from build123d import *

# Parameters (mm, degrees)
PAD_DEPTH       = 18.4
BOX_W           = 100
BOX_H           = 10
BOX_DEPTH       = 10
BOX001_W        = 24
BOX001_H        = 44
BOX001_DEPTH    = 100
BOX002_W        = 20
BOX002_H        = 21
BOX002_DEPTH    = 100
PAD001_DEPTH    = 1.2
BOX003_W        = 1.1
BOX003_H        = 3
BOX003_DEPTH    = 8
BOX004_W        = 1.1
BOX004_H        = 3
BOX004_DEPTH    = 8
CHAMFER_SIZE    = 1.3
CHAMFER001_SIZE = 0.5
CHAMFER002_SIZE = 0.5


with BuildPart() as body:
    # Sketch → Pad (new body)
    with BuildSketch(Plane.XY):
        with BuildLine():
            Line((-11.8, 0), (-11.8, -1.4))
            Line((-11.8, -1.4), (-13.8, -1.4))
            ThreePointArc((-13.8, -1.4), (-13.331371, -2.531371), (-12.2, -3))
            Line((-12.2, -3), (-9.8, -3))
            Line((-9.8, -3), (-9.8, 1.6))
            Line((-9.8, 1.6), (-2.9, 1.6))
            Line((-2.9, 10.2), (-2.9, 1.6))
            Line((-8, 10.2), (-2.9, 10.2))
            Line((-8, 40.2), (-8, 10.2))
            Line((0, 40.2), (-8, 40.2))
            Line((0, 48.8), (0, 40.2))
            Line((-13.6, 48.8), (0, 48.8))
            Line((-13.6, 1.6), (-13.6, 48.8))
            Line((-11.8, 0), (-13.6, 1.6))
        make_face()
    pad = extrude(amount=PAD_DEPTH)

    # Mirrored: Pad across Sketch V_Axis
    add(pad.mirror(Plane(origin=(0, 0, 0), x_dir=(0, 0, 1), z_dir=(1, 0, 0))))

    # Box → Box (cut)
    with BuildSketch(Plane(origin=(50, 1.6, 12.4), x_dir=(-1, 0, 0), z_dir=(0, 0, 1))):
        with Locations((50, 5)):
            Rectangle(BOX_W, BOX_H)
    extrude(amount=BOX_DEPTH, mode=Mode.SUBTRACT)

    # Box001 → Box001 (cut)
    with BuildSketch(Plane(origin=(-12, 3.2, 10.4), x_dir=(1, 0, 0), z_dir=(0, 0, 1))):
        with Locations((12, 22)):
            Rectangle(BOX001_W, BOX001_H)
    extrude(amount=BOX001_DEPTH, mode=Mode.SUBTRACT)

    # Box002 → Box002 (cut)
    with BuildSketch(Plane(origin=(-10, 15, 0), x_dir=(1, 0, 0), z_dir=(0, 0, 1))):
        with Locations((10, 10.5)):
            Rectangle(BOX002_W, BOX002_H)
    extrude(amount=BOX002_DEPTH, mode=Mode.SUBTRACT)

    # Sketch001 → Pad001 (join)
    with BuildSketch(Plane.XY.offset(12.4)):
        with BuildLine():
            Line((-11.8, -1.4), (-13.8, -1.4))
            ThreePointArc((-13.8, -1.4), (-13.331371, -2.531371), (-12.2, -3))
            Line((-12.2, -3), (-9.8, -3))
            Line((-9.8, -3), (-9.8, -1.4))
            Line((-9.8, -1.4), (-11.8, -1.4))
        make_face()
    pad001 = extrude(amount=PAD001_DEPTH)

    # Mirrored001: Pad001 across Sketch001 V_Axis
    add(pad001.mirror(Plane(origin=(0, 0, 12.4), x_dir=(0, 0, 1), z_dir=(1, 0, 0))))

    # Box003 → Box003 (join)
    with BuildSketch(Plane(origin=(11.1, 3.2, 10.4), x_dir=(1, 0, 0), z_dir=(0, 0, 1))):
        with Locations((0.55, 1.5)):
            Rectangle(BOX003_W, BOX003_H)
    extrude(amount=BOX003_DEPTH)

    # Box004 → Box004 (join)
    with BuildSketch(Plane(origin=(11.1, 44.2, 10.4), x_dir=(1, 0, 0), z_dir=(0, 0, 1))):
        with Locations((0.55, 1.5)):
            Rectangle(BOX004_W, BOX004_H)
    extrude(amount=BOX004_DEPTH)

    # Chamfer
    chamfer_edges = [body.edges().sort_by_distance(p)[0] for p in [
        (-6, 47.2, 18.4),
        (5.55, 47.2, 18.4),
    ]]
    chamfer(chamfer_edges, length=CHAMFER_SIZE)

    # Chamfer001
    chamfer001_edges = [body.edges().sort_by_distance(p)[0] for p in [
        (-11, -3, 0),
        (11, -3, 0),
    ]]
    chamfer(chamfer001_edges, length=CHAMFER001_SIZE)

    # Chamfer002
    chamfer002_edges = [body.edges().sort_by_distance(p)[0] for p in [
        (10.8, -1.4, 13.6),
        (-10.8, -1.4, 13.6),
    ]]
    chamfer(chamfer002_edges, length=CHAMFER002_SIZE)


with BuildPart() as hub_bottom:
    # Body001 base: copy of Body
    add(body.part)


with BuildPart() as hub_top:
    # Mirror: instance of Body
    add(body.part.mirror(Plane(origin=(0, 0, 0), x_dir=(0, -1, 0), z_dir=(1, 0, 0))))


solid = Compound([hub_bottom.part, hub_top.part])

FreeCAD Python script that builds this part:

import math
import FreeCAD as App
import Part
import Sketcher
from FreeCAD import Vector
Q = App.Units.Quantity


def edges_at(feature, points):
    """Names of the edges that pass closest to the given points."""
    edges = feature.Shape.Edges
    near = lambda p: min(range(len(edges)), key=lambda i: edges[i].distToShape(Part.Vertex(*p))[0])
    return sorted({f"Edge{near(p) + 1}" for p in points})

doc = App.newDocument("Part")
body = doc.addObject("PartDesign::Body", "Body")

sketch1 = body.newObject("Sketcher::SketchObject", "Sketch")
sketch1.AttachmentSupport = (doc.getObject("XY_Plane"), [""])
sketch1.MapMode = "FlatFace"
sketch1.addGeometry([
    Part.LineSegment(Vector(-11.8, 0, 0), Vector(-11.8, -1.4, 0)),
    Part.LineSegment(Vector(-11.8, -1.4, 0), Vector(-13.8, -1.4, 0)),
    Part.ArcOfCircle(Part.Circle(Vector(-12.200001, -1.400001, 0), Vector(0, 0, 1), 1.599999), math.radians(179.999982), math.radians(270.000018)),
    Part.LineSegment(Vector(-12.2, -3, 0), Vector(-9.8, -3, 0)),
    Part.LineSegment(Vector(-9.8, -3, 0), Vector(-9.8, 1.6, 0)),
    Part.LineSegment(Vector(-9.8, 1.6, 0), Vector(-2.9, 1.6, 0)),
    Part.LineSegment(Vector(-2.9, 1.6, 0), Vector(-2.9, 10.2, 0)),
    Part.LineSegment(Vector(-2.9, 10.2, 0), Vector(-8, 10.2, 0)),
    Part.LineSegment(Vector(-8, 10.2, 0), Vector(-8, 40.2, 0)),
    Part.LineSegment(Vector(-8, 40.2, 0), Vector(0, 40.2, 0)),
    Part.LineSegment(Vector(0, 40.2, 0), Vector(0, 48.8, 0)),
    Part.LineSegment(Vector(0, 48.8, 0), Vector(-13.6, 48.8, 0)),
    Part.LineSegment(Vector(-13.6, 48.8, 0), Vector(-13.6, 1.6, 0)),
    Part.LineSegment(Vector(-13.6, 1.6, 0), Vector(-11.8, 0, 0)),
], False)
sketch1.addConstraint([
    Sketcher.Constraint("Coincident", 0, 2, 1, 1),
    Sketcher.Constraint("Coincident", 1, 2, 2, 1),
    Sketcher.Constraint("Tangent", 2, 2, 3, 1),
    Sketcher.Constraint("Coincident", 3, 2, 4, 1),
    Sketcher.Constraint("Coincident", 4, 2, 5, 1),
    Sketcher.Constraint("Coincident", 5, 2, 6, 1),
    Sketcher.Constraint("Coincident", 6, 2, 7, 1),
    Sketcher.Constraint("Coincident", 7, 2, 8, 1),
    Sketcher.Constraint("Coincident", 8, 2, 9, 1),
    Sketcher.Constraint("Coincident", 9, 2, 10, 1),
    Sketcher.Constraint("Coincident", 10, 2, 11, 1),
    Sketcher.Constraint("Coincident", 11, 2, 12, 1),
    Sketcher.Constraint("Coincident", 12, 2, 13, 1),
    Sketcher.Constraint("Coincident", 13, 2, 0, 1),
    Sketcher.Constraint("Vertical", 0),
    Sketcher.Constraint("Horizontal", 1),
    Sketcher.Constraint("Horizontal", 3),
    Sketcher.Constraint("Vertical", 4),
    Sketcher.Constraint("Horizontal", 5),
    Sketcher.Constraint("Vertical", 6),
    Sketcher.Constraint("Horizontal", 7),
    Sketcher.Constraint("Vertical", 8),
    Sketcher.Constraint("Horizontal", 9),
    Sketcher.Constraint("Vertical", 10),
    Sketcher.Constraint("Horizontal", 11),
    Sketcher.Constraint("Vertical", 12),
    Sketcher.Constraint("PointOnObject", 9, 2, -2),
    Sketcher.Constraint("PointOnObject", 13, 2, -1),
    Sketcher.Constraint("Horizontal", 2, 3, 0, 2),
    Sketcher.Constraint("Horizontal", 5, 2, 12, 2),
    Sketcher.Constraint("Equal", 6, 10),
    Sketcher.Constraint("Radius", 2, Q("1.599999 mm")),
    Sketcher.Constraint("DistanceX", 1, 2, 1, 1, Q("2 mm")),
    Sketcher.Constraint("DistanceX", 9, 1, 9, 2, Q("8 mm")),
    Sketcher.Constraint("DistanceY", 8, 1, 8, 2, Q("30 mm")),
    Sketcher.Constraint("DistanceX", 3, 1, 3, 2, Q("2.4 mm")),
    Sketcher.Constraint("DistanceX", 5, 1, 5, 2, Q("6.9 mm")),
    Sketcher.Constraint("DistanceX", 7, 2, 7, 1, Q("5.1 mm")),
    Sketcher.Constraint("DistanceX", 11, 2, 11, 1, Q("13.6 mm")),
    Sketcher.Constraint("DistanceY", 0, 2, 0, 1, Q("1.4 mm")),
    Sketcher.Constraint("DistanceY", 4, 1, 4, 2, Q("4.6 mm")),
    Sketcher.Constraint("DistanceY", 6, 1, 6, 2, Q("8.6 mm")),
])
pad1 = body.newObject("PartDesign::Pad", "Pad")
pad1.Profile = sketch1
pad1.Length = 18.4
doc.recompute()

mirrored = body.newObject("PartDesign::Mirrored", "Mirrored")
mirrored.Originals = [pad1]
mirrored.MirrorPlane = (doc.getObject("YZ_Plane"), [""])
body.Tip = mirrored

sketch2 = body.newObject("Sketcher::SketchObject", "Sketch001")
sketch2.AttachmentSupport = (doc.getObject("XY_Plane"), [""])
sketch2.MapMode = "FlatFace"
sketch2.AttachmentOffset = App.Placement(Vector(0, 0, 12.4), App.Rotation())
sketch2.addGeometry([
    Part.LineSegment(Vector(50, -8.4, 0), Vector(50, 1.6, 0)),
    Part.LineSegment(Vector(50, 1.6, 0), Vector(-50, 1.6, 0)),
    Part.LineSegment(Vector(-50, 1.6, 0), Vector(-50, -8.4, 0)),
    Part.LineSegment(Vector(-50, -8.4, 0), Vector(50, -8.4, 0)),
], False)
sketch2.addConstraint([
    Sketcher.Constraint("Coincident", 0, 2, 1, 1),
    Sketcher.Constraint("Coincident", 1, 2, 2, 1),
    Sketcher.Constraint("Coincident", 2, 2, 3, 1),
    Sketcher.Constraint("Coincident", 3, 2, 0, 1),
    Sketcher.Constraint("Vertical", 0),
    Sketcher.Constraint("Horizontal", 1),
    Sketcher.Constraint("Vertical", 2),
    Sketcher.Constraint("Horizontal", 3),
    Sketcher.Constraint("DistanceX", 1, 2, 1, 1, Q("100 mm")),
    Sketcher.Constraint("DistanceY", 0, 1, 0, 2, Q("10 mm")),
    Sketcher.Constraint("DistanceX", -1, 1, 0, 2, Q("50 mm")),
    Sketcher.Constraint("DistanceY", -1, 1, 0, 2, Q("1.6 mm")),
])
pocket1 = body.newObject("PartDesign::Pocket", "Pocket")
pocket1.Profile = sketch2
pocket1.Length = 10
pocket1.Reversed = True

sketch3 = body.newObject("Sketcher::SketchObject", "Sketch002")
sketch3.AttachmentSupport = (doc.getObject("XY_Plane"), [""])
sketch3.MapMode = "FlatFace"
sketch3.AttachmentOffset = App.Placement(Vector(0, 0, 10.4), App.Rotation())
sketch3.addGeometry([
    Part.LineSegment(Vector(-12, 47.2, 0), Vector(-12, 3.2, 0)),
    Part.LineSegment(Vector(-12, 3.2, 0), Vector(12, 3.2, 0)),
    Part.LineSegment(Vector(12, 3.2, 0), Vector(12, 47.2, 0)),
    Part.LineSegment(Vector(12, 47.2, 0), Vector(-12, 47.2, 0)),
], False)
sketch3.addConstraint([
    Sketcher.Constraint("Coincident", 0, 2, 1, 1),
    Sketcher.Constraint("Coincident", 1, 2, 2, 1),
    Sketcher.Constraint("Coincident", 2, 2, 3, 1),
    Sketcher.Constraint("Coincident", 3, 2, 0, 1),
    Sketcher.Constraint("Vertical", 0),
    Sketcher.Constraint("Horizontal", 1),
    Sketcher.Constraint("Vertical", 2),
    Sketcher.Constraint("Horizontal", 3),
    Sketcher.Constraint("DistanceX", 1, 1, 1, 2, Q("24 mm")),
    Sketcher.Constraint("DistanceY", 0, 2, 0, 1, Q("44 mm")),
    Sketcher.Constraint("DistanceX", 0, 2, -1, 1, Q("12 mm")),
    Sketcher.Constraint("DistanceY", -1, 1, 0, 2, Q("3.2 mm")),
])
pocket2 = body.newObject("PartDesign::Pocket", "Pocket001")
pocket2.Profile = sketch3
pocket2.Length = 100
pocket2.Reversed = True

sketch4 = body.newObject("Sketcher::SketchObject", "Sketch003")
sketch4.AttachmentSupport = (doc.getObject("XY_Plane"), [""])
sketch4.MapMode = "FlatFace"
sketch4.addGeometry([
    Part.LineSegment(Vector(-10, 36, 0), Vector(-10, 15, 0)),
    Part.LineSegment(Vector(-10, 15, 0), Vector(10, 15, 0)),
    Part.LineSegment(Vector(10, 15, 0), Vector(10, 36, 0)),
    Part.LineSegment(Vector(10, 36, 0), Vector(-10, 36, 0)),
], False)
sketch4.addConstraint([
    Sketcher.Constraint("Coincident", 0, 2, 1, 1),
    Sketcher.Constraint("Coincident", 1, 2, 2, 1),
    Sketcher.Constraint("Coincident", 2, 2, 3, 1),
    Sketcher.Constraint("Coincident", 3, 2, 0, 1),
    Sketcher.Constraint("Vertical", 0),
    Sketcher.Constraint("Horizontal", 1),
    Sketcher.Constraint("Vertical", 2),
    Sketcher.Constraint("Horizontal", 3),
    Sketcher.Constraint("DistanceX", 1, 1, 1, 2, Q("20 mm")),
    Sketcher.Constraint("DistanceY", 0, 2, 0, 1, Q("21 mm")),
    Sketcher.Constraint("DistanceX", 0, 2, -1, 1, Q("10 mm")),
    Sketcher.Constraint("DistanceY", -1, 1, 0, 2, Q("15 mm")),
])
pocket3 = body.newObject("PartDesign::Pocket", "Pocket002")
pocket3.Profile = sketch4
pocket3.Length = 100
pocket3.Reversed = True

sketch5 = body.newObject("Sketcher::SketchObject", "Sketch004")
sketch5.AttachmentSupport = (doc.getObject("XY_Plane"), [""])
sketch5.MapMode = "FlatFace"
sketch5.AttachmentOffset = App.Placement(Vector(0, 0, 12.4), App.Rotation())
sketch5.addGeometry([
    Part.ArcOfCircle(Part.Circle(Vector(-12.200001, -1.400001, 0), Vector(0, 0, 1), 1.599999), math.radians(179.999982), math.radians(270.000018)),
    Part.LineSegment(Vector(-12.2, -3, 0), Vector(-9.8, -3, 0)),
    Part.LineSegment(Vector(-9.8, -3, 0), Vector(-9.8, -1.4, 0)),
    Part.LineSegment(Vector(-9.8, -1.4, 0), Vector(-13.8, -1.4, 0)),
], False)
sketch5.addConstraint([
    Sketcher.Constraint("Tangent", 0, 2, 1, 1),
    Sketcher.Constraint("Coincident", 1, 2, 2, 1),
    Sketcher.Constraint("Coincident", 2, 2, 3, 1),
    Sketcher.Constraint("Coincident", 3, 2, 0, 1),
    Sketcher.Constraint("Horizontal", 1),
    Sketcher.Constraint("Vertical", 2),
    Sketcher.Constraint("Horizontal", 3),
    Sketcher.Constraint("Horizontal", 0, 3, 2, 2),
    Sketcher.Constraint("Radius", 0, Q("1.599999 mm")),
    Sketcher.Constraint("DistanceX", 3, 2, 3, 1, Q("4 mm")),
    Sketcher.Constraint("DistanceY", 0, 2, -1, 1, Q("3 mm")),
    Sketcher.Constraint("DistanceX", 0, 3, -1, 1, Q("12.200001 mm")),
])
pad2 = body.newObject("PartDesign::Pad", "Pad001")
pad2.Profile = sketch5
pad2.Length = 1.2
doc.recompute()

mirrored2 = body.newObject("PartDesign::Mirrored", "Mirrored001")
mirrored2.Originals = [pad2]
mirrored2.MirrorPlane = (doc.getObject("YZ_Plane"), [""])
body.Tip = mirrored2

sketch6 = body.newObject("Sketcher::SketchObject", "Sketch005")
sketch6.AttachmentSupport = (doc.getObject("XY_Plane"), [""])
sketch6.MapMode = "FlatFace"
sketch6.AttachmentOffset = App.Placement(Vector(0, 0, 10.4), App.Rotation())
sketch6.addGeometry([
    Part.LineSegment(Vector(11.1, 6.2, 0), Vector(11.1, 3.2, 0)),
    Part.LineSegment(Vector(11.1, 3.2, 0), Vector(12.2, 3.2, 0)),
    Part.LineSegment(Vector(12.2, 3.2, 0), Vector(12.2, 6.2, 0)),
    Part.LineSegment(Vector(12.2, 6.2, 0), Vector(11.1, 6.2, 0)),
], False)
sketch6.addConstraint([
    Sketcher.Constraint("Coincident", 0, 2, 1, 1),
    Sketcher.Constraint("Coincident", 1, 2, 2, 1),
    Sketcher.Constraint("Coincident", 2, 2, 3, 1),
    Sketcher.Constraint("Coincident", 3, 2, 0, 1),
    Sketcher.Constraint("Vertical", 0),
    Sketcher.Constraint("Horizontal", 1),
    Sketcher.Constraint("Vertical", 2),
    Sketcher.Constraint("Horizontal", 3),
    Sketcher.Constraint("DistanceY", 0, 2, 0, 1, Q("3 mm")),
    Sketcher.Constraint("DistanceX", 1, 1, 1, 2, Q("1.1 mm")),
    Sketcher.Constraint("DistanceX", -1, 1, 0, 2, Q("11.1 mm")),
    Sketcher.Constraint("DistanceY", -1, 1, 0, 2, Q("3.2 mm")),
])
pad3 = body.newObject("PartDesign::Pad", "Pad002")
pad3.Profile = sketch6
pad3.Length = 8

sketch7 = body.newObject("Sketcher::SketchObject", "Sketch006")
sketch7.AttachmentSupport = (doc.getObject("XY_Plane"), [""])
sketch7.MapMode = "FlatFace"
sketch7.AttachmentOffset = App.Placement(Vector(0, 0, 10.4), App.Rotation())
sketch7.addGeometry([
    Part.LineSegment(Vector(11.1, 47.2, 0), Vector(11.1, 44.2, 0)),
    Part.LineSegment(Vector(11.1, 44.2, 0), Vector(12.2, 44.2, 0)),
    Part.LineSegment(Vector(12.2, 44.2, 0), Vector(12.2, 47.2, 0)),
    Part.LineSegment(Vector(12.2, 47.2, 0), Vector(11.1, 47.2, 0)),
], False)
sketch7.addConstraint([
    Sketcher.Constraint("Coincident", 0, 2, 1, 1),
    Sketcher.Constraint("Coincident", 1, 2, 2, 1),
    Sketcher.Constraint("Coincident", 2, 2, 3, 1),
    Sketcher.Constraint("Coincident", 3, 2, 0, 1),
    Sketcher.Constraint("Vertical", 0),
    Sketcher.Constraint("Horizontal", 1),
    Sketcher.Constraint("Vertical", 2),
    Sketcher.Constraint("Horizontal", 3),
    Sketcher.Constraint("DistanceY", 0, 2, 0, 1, Q("3 mm")),
    Sketcher.Constraint("DistanceX", 1, 1, 1, 2, Q("1.1 mm")),
    Sketcher.Constraint("DistanceX", -1, 1, 0, 2, Q("11.1 mm")),
    Sketcher.Constraint("DistanceY", -1, 1, 0, 2, Q("44.2 mm")),
])
pad4 = body.newObject("PartDesign::Pad", "Pad003")
pad4.Profile = sketch7
pad4.Length = 8
doc.recompute()

chamfer = body.newObject("PartDesign::Chamfer", "Chamfer")
chamfer.Base = (pad4, edges_at(pad4, [(-0.45, 47.2, 18.4), (-0.45, 47.2, 18.4)]))
chamfer.Size = 1.3
doc.recompute()

chamfer2 = body.newObject("PartDesign::Chamfer", "Chamfer001")
chamfer2.Base = (chamfer, edges_at(chamfer, [(-11, -3, 0), (11, -3, 0)]))
chamfer2.Size = 0.5
doc.recompute()

chamfer3 = body.newObject("PartDesign::Chamfer", "Chamfer002")
chamfer3.Base = (chamfer2, edges_at(chamfer2, [(11.8, -1.4, 13.6), (-11.8, -1.4, 13.6)]))
chamfer3.Size = 0.5
body2 = doc.addObject("PartDesign::Body", "Body001")
doc.recompute()

body2.BaseFeature = body
doc.recompute()
body3 = doc.addObject("PartDesign::Body", "Body002")
doc.recompute()

mirroring = doc.addObject("Part::Mirroring", "Mirroring")
mirroring.Source = body
mirroring.Base = Vector(0, 0, 0)
mirroring.Normal = Vector(1, 0, 0)
body3.BaseFeature = mirroring
doc.recompute()
body.Visibility = False
mirroring.Visibility = False

doc.recompute()
